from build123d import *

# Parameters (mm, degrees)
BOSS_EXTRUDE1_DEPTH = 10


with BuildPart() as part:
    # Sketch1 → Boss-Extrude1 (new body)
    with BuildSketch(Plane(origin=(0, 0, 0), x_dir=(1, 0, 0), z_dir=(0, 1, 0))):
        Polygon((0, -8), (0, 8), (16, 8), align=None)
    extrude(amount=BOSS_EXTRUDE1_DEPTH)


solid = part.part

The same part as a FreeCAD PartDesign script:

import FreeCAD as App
import Part
import Sketcher
from FreeCAD import Vector


def add_polygon(sketch, points):
    """Adds a closed chain of lines whose ends are joined by coincident constraints."""
    first, n = sketch.GeometryCount, len(points)
    for a, b in zip(points, points[1:] + points[:1]):
        sketch.addGeometry(Part.LineSegment(App.Vector(*a, 0), App.Vector(*b, 0)), False)
    for i in range(n):
        sketch.addConstraint(Sketcher.Constraint("Coincident", first + i, 2, first + (i + 1) % n, 1))

doc = App.newDocument("Part")
body = doc.addObject("PartDesign::Body", "Body")

# Sketch on XZ plane
sketch1 = body.newObject("Sketcher::SketchObject", "Sketch")
sketch1.AttachmentSupport = (doc.getObject("XZ_Plane"), [""])
sketch1.MapMode = "FlatFace"
add_polygon(sketch1, [(0, -8), (0, 8), (16, -8)])  # lines 0-2
sketch1.addConstraint([
    Sketcher.Constraint("Vertical", 0),
    Sketcher.Constraint("Horizontal", 2),
    Sketcher.Constraint("Symmetric", 0, 2, 2, 2, -1, 1),
    Sketcher.Constraint("Equal", 2, 0),
    Sketcher.Constraint("DistanceX", 2, 2, 2, 1, 16.0),
])
pad1 = body.newObject("PartDesign::Pad", "Pad")
pad1.Profile = sketch1
pad1.Length = 10
pad1.Reversed = True

doc.recompute()
